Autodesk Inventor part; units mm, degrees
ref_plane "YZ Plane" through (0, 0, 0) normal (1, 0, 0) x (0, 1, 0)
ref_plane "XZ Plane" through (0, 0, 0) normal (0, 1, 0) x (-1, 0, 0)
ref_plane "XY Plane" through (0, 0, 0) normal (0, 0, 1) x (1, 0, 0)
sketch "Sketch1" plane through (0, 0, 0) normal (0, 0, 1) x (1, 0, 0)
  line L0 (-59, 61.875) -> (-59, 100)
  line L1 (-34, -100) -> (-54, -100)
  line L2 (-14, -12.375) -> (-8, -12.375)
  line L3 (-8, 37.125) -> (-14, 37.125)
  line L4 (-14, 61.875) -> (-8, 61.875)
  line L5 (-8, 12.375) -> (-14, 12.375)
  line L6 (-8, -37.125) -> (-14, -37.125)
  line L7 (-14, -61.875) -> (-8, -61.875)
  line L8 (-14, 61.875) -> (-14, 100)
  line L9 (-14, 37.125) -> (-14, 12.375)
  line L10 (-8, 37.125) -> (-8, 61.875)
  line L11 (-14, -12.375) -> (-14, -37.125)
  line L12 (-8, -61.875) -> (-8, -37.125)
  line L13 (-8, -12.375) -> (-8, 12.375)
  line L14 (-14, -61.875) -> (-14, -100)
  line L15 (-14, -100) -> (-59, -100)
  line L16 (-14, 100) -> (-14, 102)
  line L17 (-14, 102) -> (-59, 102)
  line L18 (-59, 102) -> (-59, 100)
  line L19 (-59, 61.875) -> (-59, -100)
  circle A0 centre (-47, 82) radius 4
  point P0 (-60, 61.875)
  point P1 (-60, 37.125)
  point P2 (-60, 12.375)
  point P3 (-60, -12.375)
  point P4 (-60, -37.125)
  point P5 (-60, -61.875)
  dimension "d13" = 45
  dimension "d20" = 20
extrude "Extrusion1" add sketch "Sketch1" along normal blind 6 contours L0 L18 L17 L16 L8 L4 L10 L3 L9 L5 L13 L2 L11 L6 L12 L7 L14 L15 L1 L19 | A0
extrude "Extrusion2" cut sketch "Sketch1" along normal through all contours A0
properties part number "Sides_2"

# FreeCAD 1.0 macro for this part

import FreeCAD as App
import Part
import Sketcher

V = App.Vector
Q = App.Units.Quantity

doc = App.newDocument("Part")
params = doc.addObject("Spreadsheet::Sheet", "Params")
for row, (alias, value) in enumerate([
    ("sketch1_width", "45 mm"),
    ("sketch1_width2", "6 mm"),
    ("sketch1_height", "202 mm"),
    ("sketch1_height2", "24.75 mm"),
    ("pad1_length", "6 mm"),
    ("sketch2_diameter", "8 mm"),
], start=1):
    params.set(f"A{row}", alias)
    params.set(f"B{row}", "=" + value)
    params.setAlias(f"B{row}", alias)

body = doc.addObject("PartDesign::Body", "Body")

sketch1 = body.newObject("Sketcher::SketchObject", "Sketch")
sketch1.AttachmentSupport = (doc.getObject("XY_Plane"), [""])
sketch1.MapMode = "FlatFace"
sketch1.addGeometry(Part.LineSegment(V(-59, -100, 0), V(-14, -100, 0)), False)
sketch1.addGeometry(Part.LineSegment(V(-14, -100, 0), V(-14, -62, 0)), False)
sketch1.addGeometry(Part.LineSegment(V(-14, -62, 0), V(-8, -62, 0)), False)
sketch1.addGeometry(Part.LineSegment(V(-8, -62, 0), V(-8, -37, 0)), False)
sketch1.addGeometry(Part.LineSegment(V(-8, -37, 0), V(-14, -37, 0)), False)
sketch1.addGeometry(Part.LineSegment(V(-14, -37, 0), V(-14, -12, 0)), False)
sketch1.addGeometry(Part.LineSegment(V(-14, -12, 0), V(-8, -12, 0)), False)
sketch1.addGeometry(Part.LineSegment(V(-8, -12, 0), V(-8, 12, 0)), False)
sketch1.addGeometry(Part.LineSegment(V(-8, 12, 0), V(-14, 12, 0)), False)
sketch1.addGeometry(Part.LineSegment(V(-14, 12, 0), V(-14, 37, 0)), False)
sketch1.addGeometry(Part.LineSegment(V(-14, 37, 0), V(-8, 37, 0)), False)
sketch1.addGeometry(Part.LineSegment(V(-8, 37, 0), V(-8, 62, 0)), False)
sketch1.addGeometry(Part.LineSegment(V(-8, 62, 0), V(-14, 62, 0)), False)
sketch1.addGeometry(Part.LineSegment(V(-14, 62, 0), V(-14, 102, 0)), False)
sketch1.addGeometry(Part.LineSegment(V(-14, 102, 0), V(-59, 102, 0)), False)
sketch1.addGeometry(Part.LineSegment(V(-59, 102, 0), V(-59, -100, 0)), False)
sketch1.addConstraint(Sketcher.Constraint("Coincident", 0, 2, 1, 1))
sketch1.addConstraint(Sketcher.Constraint("Coincident", 1, 2, 2, 1))
sketch1.addConstraint(Sketcher.Constraint("Coincident", 2, 2, 3, 1))
sketch1.addConstraint(Sketcher.Constraint("Coincident", 3, 2, 4, 1))
sketch1.addConstraint(Sketcher.Constraint("Coincident", 4, 2, 5, 1))
sketch1.addConstraint(Sketcher.Constraint("Coincident", 5, 2, 6, 1))
sketch1.addConstraint(Sketcher.Constraint("Coincident", 6, 2, 7, 1))
sketch1.addConstraint(Sketcher.Constraint("Coincident", 7, 2, 8, 1))
sketch1.addConstraint(Sketcher.Constraint("Coincident", 8, 2, 9, 1))
sketch1.addConstraint(Sketcher.Constraint("Coincident", 9, 2, 10, 1))
sketch1.addConstraint(Sketcher.Constraint("Coincident", 10, 2, 11, 1))
sketch1.addConstraint(Sketcher.Constraint("Coincident", 11, 2, 12, 1))
sketch1.addConstraint(Sketcher.Constraint("Coincident", 12, 2, 13, 1))
sketch1.addConstraint(Sketcher.Constraint("Coincident", 13, 2, 14, 1))
sketch1.addConstraint(Sketcher.Constraint("Coincident", 14, 2, 15, 1))
sketch1.addConstraint(Sketcher.Constraint("Coincident", 15, 2, 0, 1))
sketch1.addConstraint(Sketcher.Constraint("Horizontal", 0))
sketch1.addConstraint(Sketcher.Constraint("Vertical", 1))
sketch1.addConstraint(Sketcher.Constraint("Horizontal", 2))
sketch1.addConstraint(Sketcher.Constraint("Vertical", 3))
sketch1.addConstraint(Sketcher.Constraint("Horizontal", 4))
sketch1.addConstraint(Sketcher.Constraint("Vertical", 5))
sketch1.addConstraint(Sketcher.Constraint("Horizontal", 6))
sketch1.addConstraint(Sketcher.Constraint("Vertical", 7))
sketch1.addConstraint(Sketcher.Constraint("Horizontal", 8))
sketch1.addConstraint(Sketcher.Constraint("Vertical", 9))
sketch1.addConstraint(Sketcher.Constraint("Horizontal", 10))
sketch1.addConstraint(Sketcher.Constraint("Vertical", 11))
sketch1.addConstraint(Sketcher.Constraint("Horizontal", 12))
sketch1.addConstraint(Sketcher.Constraint("Vertical", 13))
sketch1.addConstraint(Sketcher.Constraint("Horizontal", 14))
sketch1.addConstraint(Sketcher.Constraint("Vertical", 15))
sketch1.addConstraint(Sketcher.Constraint("Symmetric", 5, 2, 8, 2, -1))
sketch1.addConstraint(Sketcher.Constraint("Symmetric", 3, 2, 10, 2, -1))
sketch1.addConstraint(Sketcher.Constraint("Symmetric", 1, 2, 12, 2, -1))
sketch1.addConstraint(Sketcher.Constraint("Vertical", 1, 2, 4, 2))
sketch1.addConstraint(Sketcher.Constraint("Vertical", 3, 2, 6, 2))
sketch1.addConstraint(Sketcher.Constraint("Equal", 3, 5))
sketch1.addConstraint(Sketcher.Constraint("Equal", 5, 7))
sketch1.addConstraint(Sketcher.Constraint("DistanceX", 0, 1, 0, 2, Q("45 mm")))
sketch1.addConstraint(Sketcher.Constraint("DistanceX", 2, 1, 2, 2, Q("6 mm")))
sketch1.addConstraint(Sketcher.Constraint("DistanceY", 15, 2, 15, 1, Q("202 mm")))
sketch1.addConstraint(Sketcher.Constraint("DistanceX", 0, 2, -1, 1, Q("14 mm")))
sketch1.addConstraint(Sketcher.Constraint("DistanceY", 0, 2, -1, 1, Q("100 mm")))
sketch1.addConstraint(Sketcher.Constraint("DistanceY", 3, 1, 3, 2, Q("24.75 mm")))
sketch1.setExpression("Constraints[39]", "Params.sketch1_width")
sketch1.setExpression("Constraints[40]", "Params.sketch1_width2")
sketch1.setExpression("Constraints[41]", "Params.sketch1_height")
sketch1.setExpression("Constraints[44]", "Params.sketch1_height2")
pad1 = body.newObject("PartDesign::Pad", "Pad")
pad1.Profile = sketch1
pad1.setExpression("Length", "Params.pad1_length")

sketch2 = body.newObject("Sketcher::SketchObject", "Sketch001")
sketch2.AttachmentSupport = (doc.getObject("XY_Plane"), [""])
sketch2.MapMode = "FlatFace"
sketch2.addGeometry(Part.Circle(V(-47, 82, 0), V(0, 0, 1), 4), False)
sketch2.addConstraint(Sketcher.Constraint("Diameter", 0, Q("8 mm")))
sketch2.addConstraint(Sketcher.Constraint("DistanceX", 0, 3, -1, 1, Q("47 mm")))
sketch2.addConstraint(Sketcher.Constraint("DistanceY", -1, 1, 0, 3, Q("82 mm")))
sketch2.setExpression("Constraints[0]", "Params.sketch2_diameter")
pocket1 = body.newObject("PartDesign::Pocket", "Pocket")
pocket1.Profile = sketch2
pocket1.Type = "ThroughAll"
pocket1.Reversed = True

doc.recompute()
